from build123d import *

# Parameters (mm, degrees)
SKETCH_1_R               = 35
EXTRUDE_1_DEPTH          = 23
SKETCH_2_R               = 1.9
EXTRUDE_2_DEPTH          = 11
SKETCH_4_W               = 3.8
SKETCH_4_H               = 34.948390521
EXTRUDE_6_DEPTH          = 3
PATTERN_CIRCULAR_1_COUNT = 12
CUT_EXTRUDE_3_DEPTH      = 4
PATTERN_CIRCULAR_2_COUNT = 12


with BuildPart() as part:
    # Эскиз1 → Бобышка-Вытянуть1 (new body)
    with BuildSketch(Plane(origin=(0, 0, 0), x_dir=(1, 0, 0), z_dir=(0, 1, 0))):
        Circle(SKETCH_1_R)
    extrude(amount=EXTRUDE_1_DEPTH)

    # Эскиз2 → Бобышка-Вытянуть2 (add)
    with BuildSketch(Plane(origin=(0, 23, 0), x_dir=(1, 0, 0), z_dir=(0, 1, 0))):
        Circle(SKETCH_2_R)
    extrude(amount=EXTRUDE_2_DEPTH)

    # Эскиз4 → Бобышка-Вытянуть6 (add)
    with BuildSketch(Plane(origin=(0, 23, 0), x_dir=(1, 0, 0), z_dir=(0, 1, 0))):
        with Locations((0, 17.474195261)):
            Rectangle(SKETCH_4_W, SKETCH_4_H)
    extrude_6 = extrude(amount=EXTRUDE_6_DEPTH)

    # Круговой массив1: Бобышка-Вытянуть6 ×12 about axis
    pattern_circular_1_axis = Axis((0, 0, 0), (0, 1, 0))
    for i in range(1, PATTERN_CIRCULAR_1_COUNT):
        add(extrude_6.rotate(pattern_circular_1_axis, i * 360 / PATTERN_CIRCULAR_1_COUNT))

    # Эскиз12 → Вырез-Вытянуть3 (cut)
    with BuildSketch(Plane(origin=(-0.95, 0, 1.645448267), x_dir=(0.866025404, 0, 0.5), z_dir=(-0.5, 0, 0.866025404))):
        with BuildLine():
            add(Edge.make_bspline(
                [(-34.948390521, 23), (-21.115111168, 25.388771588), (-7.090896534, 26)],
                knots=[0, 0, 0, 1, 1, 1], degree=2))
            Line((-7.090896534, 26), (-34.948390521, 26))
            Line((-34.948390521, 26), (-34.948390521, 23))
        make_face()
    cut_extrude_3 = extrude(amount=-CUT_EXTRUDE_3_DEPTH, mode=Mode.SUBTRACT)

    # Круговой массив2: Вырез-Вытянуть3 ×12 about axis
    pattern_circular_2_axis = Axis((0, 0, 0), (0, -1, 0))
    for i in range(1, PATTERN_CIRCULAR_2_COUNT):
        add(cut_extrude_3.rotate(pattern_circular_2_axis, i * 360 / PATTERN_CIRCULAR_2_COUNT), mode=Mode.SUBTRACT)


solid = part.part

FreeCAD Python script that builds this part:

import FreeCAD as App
import Part
import Sketcher

V = App.Vector
Q = App.Units.Quantity

doc = App.newDocument("Part")
params = doc.addObject("Spreadsheet::Sheet", "Params")
for row, (alias, value) in enumerate([
    ("sketch1_diameter", "70 mm"),
    ("pad1_length", "23 mm"),
    ("sketch2_diameter", "3.8 mm"),
    ("pad2_length", "11 mm"),
    ("sketch3_width", "3.8 mm"),
    ("pad3_length", "3 mm"),
    ("pocket1_length", "4 mm"),
], start=1):
    params.set(f"A{row}", alias)
    params.set(f"B{row}", "=" + value)
    params.setAlias(f"B{row}", alias)

body = doc.addObject("PartDesign::Body", "Body")

sketch1 = doc.addObject("Sketcher::SketchObject", "Sketch")
body.addObject(sketch1)
sketch1.AttachmentSupport = (doc.XZ_Plane, [""])
sketch1.MapMode = "FlatFace"
sketch1.addGeometry(Part.Circle(V(0, 0, 0), V(0, 0, 1), 35), False)
sketch1.addConstraint([
    Sketcher.Constraint("Coincident", 0, 3, -1, 1),
    Sketcher.Constraint("Diameter", 0, Q("70 mm")),
])
sketch1.setExpression("Constraints[1]", "Params.sketch1_diameter")
pad1 = doc.addObject("PartDesign::Pad", "Pad")
body.addObject(pad1)
pad1.Profile = sketch1
pad1.setExpression("Length", "Params.pad1_length")
pad1.Reversed = True

sketch2 = doc.addObject("Sketcher::SketchObject", "Sketch001")
body.addObject(sketch2)
sketch2.AttachmentSupport = (doc.XZ_Plane, [""])
sketch2.MapMode = "FlatFace"
sketch2.AttachmentOffset = App.Placement(V(0, 0, -23), App.Rotation())
sketch2.addGeometry(Part.Circle(V(0, 0, 0), V(0, 0, 1), 1.9), False)
sketch2.addConstraint([
    Sketcher.Constraint("Coincident", 0, 3, -1, 1),
    Sketcher.Constraint("Diameter", 0, Q("3.8 mm")),
])
sketch2.setExpression("Constraints[1]", "Params.sketch2_diameter")
pad2 = doc.addObject("PartDesign::Pad", "Pad001")
body.addObject(pad2)
pad2.Profile = sketch2
pad2.setExpression("Length", "Params.pad2_length")
pad2.Reversed = True

sketch3 = doc.addObject("Sketcher::SketchObject", "Sketch002")
body.addObject(sketch3)
sketch3.AttachmentSupport = (doc.XZ_Plane, [""])
sketch3.MapMode = "FlatFace"
sketch3.AttachmentOffset = App.Placement(V(0, 0, -23), App.Rotation())
sketch3.addGeometry([
    Part.LineSegment(V(-1.9, -34.9, 0), V(-1.9, 0, 0)),
    Part.LineSegment(V(-1.9, 0, 0), V(1.9, 0, 0)),
    Part.LineSegment(V(1.9, 0, 0), V(1.9, -34.9, 0)),
    Part.LineSegment(V(1.9, -34.9, 0), V(-1.9, -34.9, 0)),
], False)
sketch3.addConstraint([
    Sketcher.Constraint("Coincident", 0, 2, 1, 1),
    Sketcher.Constraint("Coincident", 1, 2, 2, 1),
    Sketcher.Constraint("Coincident", 2, 2, 3, 1),
    Sketcher.Constraint("Coincident", 3, 2, 0, 1),
    Sketcher.Constraint("Vertical", 0),
    Sketcher.Constraint("Horizontal", 1),
    Sketcher.Constraint("Vertical", 2),
    Sketcher.Constraint("Horizontal", 3),
    Sketcher.Constraint("Symmetric", 0, 2, 1, 2, -1, 1),
    Sketcher.Constraint("DistanceX", 1, 1, 1, 2, Q("3.8 mm")),
    Sketcher.Constraint("DistanceY", 0, 1, 0, 2, Q("34.948391 mm")),
])
sketch3.setExpression("Constraints[9]", "Params.sketch3_width")
pad3 = doc.addObject("PartDesign::Pad", "Pad002")
body.addObject(pad3)
pad3.Profile = sketch3
pad3.setExpression("Length", "Params.pad3_length")
pad3.Reversed = True
doc.recompute()

polarpattern = doc.addObject("PartDesign::PolarPattern", "PolarPattern")
body.addObject(polarpattern)
polarpattern.Originals = [pad3]
polarpattern.Axis = (doc.Y_Axis, [""])
polarpattern.Angle = 360
polarpattern.Occurrences = 12
body.Tip = polarpattern

sketch4 = doc.addObject("Sketcher::SketchObject", "Sketch003")
body.addObject(sketch4)
sketch4.Placement = App.Placement(V(-0.95, 0, 1.645448), App.Rotation(V(0.866025404, 0, 0.5), V(0, 1, 0), V(-0.5, 0, 0.866025404), "ZXY"))
sketch4.addGeometry([
    Part.BSplineCurve([V(-34.948391, 23, 0), V(-21.115111, 25.388772, 0), V(-7.090897, 26, 0)], [3, 3], [0, 1], False, 2, [1, 1, 1], False),
    Part.LineSegment(V(-7.090897, 26, 0), V(-34.948391, 26, 0)),
    Part.LineSegment(V(-34.948391, 26, 0), V(-34.948391, 23, 0)),
], False)
sketch4.addConstraint([
    Sketcher.Constraint("Block", 0),
    Sketcher.Constraint("Coincident", 0, 2, 1, 1),
    Sketcher.Constraint("Coincident", 1, 2, 2, 1),
    Sketcher.Constraint("Coincident", 2, 2, 0, 1),
    Sketcher.Constraint("Horizontal", 1),
    Sketcher.Constraint("Vertical", 2),
])
pocket1 = doc.addObject("PartDesign::Pocket", "Pocket")
body.addObject(pocket1)
pocket1.Profile = sketch4
pocket1.setExpression("Length", "Params.pocket1_length")
doc.recompute()

polarpattern2 = doc.addObject("PartDesign::PolarPattern", "PolarPattern001")
body.addObject(polarpattern2)
polarpattern2.Originals = [pocket1]
polarpattern2.Axis = (doc.Y_Axis, [""])
polarpattern2.Angle = 360
polarpattern2.Occurrences = 12
body.Tip = polarpattern2

doc.recompute()
